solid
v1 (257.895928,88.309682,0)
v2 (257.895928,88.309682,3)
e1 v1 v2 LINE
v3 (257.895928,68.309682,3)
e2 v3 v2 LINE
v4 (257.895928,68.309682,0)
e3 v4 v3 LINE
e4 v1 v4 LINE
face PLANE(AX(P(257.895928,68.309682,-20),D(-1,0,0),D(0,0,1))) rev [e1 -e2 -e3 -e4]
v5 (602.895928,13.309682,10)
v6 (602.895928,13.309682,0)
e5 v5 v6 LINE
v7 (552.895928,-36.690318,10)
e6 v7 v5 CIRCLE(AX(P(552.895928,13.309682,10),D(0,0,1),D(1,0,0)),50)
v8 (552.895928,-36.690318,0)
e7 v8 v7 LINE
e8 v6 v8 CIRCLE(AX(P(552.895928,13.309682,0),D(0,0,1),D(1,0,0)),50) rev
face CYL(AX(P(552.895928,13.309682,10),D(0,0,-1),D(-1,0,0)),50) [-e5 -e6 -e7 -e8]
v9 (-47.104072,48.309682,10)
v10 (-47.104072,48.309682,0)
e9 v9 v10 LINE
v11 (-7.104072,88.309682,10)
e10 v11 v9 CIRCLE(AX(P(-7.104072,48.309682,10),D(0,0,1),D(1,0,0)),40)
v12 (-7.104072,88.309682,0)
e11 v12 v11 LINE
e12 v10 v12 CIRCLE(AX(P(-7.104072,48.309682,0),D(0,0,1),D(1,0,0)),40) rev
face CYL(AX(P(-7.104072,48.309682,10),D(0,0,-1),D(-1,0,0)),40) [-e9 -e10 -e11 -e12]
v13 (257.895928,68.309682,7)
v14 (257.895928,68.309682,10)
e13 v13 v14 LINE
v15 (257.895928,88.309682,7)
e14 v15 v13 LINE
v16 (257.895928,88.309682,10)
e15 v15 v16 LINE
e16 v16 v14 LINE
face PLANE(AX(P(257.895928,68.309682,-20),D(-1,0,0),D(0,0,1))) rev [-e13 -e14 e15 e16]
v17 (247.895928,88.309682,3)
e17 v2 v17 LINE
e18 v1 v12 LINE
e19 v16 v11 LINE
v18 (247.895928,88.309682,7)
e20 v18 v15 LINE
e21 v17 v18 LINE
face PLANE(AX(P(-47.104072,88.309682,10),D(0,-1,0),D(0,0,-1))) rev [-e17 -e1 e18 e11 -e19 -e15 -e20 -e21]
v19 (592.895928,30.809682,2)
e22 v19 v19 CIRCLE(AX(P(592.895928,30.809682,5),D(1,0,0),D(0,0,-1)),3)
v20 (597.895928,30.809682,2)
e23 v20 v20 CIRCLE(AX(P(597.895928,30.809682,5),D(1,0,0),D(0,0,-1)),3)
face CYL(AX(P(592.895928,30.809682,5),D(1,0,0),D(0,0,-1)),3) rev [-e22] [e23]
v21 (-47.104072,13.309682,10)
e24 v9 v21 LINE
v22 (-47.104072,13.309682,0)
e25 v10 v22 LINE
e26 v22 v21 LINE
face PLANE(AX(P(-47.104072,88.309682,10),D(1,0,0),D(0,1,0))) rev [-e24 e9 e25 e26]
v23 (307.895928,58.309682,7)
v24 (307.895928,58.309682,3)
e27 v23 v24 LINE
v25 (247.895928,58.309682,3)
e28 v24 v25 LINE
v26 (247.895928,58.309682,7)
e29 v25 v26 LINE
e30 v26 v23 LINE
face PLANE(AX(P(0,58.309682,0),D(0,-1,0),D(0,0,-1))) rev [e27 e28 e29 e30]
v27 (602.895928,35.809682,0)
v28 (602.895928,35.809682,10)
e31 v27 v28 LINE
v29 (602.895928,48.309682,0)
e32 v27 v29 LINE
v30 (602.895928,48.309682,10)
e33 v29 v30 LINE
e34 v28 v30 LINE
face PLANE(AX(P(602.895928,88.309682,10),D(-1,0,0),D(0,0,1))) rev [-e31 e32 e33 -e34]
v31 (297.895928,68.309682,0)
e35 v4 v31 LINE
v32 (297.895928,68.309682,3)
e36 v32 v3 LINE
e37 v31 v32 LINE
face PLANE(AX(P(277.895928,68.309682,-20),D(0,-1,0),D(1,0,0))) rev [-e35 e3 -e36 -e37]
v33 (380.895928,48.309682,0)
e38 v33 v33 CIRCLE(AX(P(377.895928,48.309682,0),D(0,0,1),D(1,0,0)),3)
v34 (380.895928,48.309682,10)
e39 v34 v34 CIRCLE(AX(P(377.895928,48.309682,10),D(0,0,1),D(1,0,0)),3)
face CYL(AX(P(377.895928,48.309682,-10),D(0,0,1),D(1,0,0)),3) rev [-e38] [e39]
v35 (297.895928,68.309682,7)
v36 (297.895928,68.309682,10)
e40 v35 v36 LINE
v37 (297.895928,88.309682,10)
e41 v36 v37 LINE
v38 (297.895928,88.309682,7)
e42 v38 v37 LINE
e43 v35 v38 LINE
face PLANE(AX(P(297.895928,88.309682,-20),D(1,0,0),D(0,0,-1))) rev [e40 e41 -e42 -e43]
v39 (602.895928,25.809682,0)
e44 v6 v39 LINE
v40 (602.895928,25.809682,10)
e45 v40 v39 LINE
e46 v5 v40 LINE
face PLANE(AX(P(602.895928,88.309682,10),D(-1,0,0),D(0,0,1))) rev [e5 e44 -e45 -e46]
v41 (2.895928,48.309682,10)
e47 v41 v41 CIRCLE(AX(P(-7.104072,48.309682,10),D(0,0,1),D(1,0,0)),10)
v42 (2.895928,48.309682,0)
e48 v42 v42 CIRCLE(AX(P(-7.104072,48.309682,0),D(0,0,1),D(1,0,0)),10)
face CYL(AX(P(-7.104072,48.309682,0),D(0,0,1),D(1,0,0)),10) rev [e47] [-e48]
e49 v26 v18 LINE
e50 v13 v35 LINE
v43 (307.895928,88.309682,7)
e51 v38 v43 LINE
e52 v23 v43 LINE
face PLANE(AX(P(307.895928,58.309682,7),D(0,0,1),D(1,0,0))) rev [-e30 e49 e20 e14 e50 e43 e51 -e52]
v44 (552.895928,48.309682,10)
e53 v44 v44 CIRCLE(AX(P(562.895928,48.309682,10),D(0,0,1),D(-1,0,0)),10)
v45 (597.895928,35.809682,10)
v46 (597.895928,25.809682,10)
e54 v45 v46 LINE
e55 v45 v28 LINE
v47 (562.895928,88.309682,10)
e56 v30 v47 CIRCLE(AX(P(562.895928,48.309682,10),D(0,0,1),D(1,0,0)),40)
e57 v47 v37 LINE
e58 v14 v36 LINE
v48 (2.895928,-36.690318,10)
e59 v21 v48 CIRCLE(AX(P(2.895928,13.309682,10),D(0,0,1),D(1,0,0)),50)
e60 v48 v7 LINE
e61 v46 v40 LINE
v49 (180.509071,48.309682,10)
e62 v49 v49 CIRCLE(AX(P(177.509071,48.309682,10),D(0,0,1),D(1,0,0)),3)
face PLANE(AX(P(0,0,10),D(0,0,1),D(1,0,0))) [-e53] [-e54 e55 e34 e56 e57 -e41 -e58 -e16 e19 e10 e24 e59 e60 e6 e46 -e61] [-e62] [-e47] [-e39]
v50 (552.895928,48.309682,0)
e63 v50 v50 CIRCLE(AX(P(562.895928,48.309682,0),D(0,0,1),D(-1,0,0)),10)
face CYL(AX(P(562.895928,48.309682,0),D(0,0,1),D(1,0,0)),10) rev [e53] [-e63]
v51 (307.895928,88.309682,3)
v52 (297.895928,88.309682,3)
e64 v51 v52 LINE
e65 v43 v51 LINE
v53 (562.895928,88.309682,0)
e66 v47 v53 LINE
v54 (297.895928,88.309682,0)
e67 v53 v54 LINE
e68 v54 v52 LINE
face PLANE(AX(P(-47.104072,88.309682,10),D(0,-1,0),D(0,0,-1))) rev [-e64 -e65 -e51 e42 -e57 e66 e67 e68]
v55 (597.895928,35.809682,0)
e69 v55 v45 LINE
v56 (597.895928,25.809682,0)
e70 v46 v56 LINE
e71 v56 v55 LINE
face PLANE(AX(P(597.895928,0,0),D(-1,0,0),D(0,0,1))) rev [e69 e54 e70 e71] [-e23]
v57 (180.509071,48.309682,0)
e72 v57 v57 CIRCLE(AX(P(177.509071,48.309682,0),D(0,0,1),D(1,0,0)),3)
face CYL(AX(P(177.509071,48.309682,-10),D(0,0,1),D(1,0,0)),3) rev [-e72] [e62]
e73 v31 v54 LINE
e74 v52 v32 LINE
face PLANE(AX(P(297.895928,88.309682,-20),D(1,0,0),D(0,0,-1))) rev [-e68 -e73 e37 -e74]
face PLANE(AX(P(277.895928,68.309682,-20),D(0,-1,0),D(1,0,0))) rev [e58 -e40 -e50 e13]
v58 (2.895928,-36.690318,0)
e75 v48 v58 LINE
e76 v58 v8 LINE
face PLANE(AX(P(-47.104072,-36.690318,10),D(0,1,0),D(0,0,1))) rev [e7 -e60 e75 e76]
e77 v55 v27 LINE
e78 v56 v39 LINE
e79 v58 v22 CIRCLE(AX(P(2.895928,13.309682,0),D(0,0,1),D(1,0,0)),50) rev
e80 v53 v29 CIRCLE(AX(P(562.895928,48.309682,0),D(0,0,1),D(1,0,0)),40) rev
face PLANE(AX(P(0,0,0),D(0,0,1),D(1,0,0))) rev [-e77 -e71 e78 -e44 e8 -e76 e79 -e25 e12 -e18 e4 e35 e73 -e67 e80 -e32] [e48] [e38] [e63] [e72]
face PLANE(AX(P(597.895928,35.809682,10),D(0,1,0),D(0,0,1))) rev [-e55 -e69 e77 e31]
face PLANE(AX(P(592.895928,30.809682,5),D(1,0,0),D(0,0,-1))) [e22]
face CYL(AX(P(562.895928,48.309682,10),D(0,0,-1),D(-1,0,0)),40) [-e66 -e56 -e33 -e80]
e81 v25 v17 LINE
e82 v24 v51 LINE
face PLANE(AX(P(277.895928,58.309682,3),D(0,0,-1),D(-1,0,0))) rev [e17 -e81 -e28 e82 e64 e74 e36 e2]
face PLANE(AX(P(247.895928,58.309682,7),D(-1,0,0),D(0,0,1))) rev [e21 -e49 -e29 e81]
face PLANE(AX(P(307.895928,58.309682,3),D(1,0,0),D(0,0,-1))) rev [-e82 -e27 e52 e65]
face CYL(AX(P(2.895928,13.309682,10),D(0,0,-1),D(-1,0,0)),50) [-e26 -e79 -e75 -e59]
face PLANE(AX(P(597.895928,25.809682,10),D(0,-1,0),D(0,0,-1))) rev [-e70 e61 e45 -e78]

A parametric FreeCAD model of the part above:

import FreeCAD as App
import Part
import Sketcher


def edges_at(feature, points):
    """Names of the edges that pass closest to the given points."""
    edges = feature.Shape.Edges
    near = lambda p: min(range(len(edges)), key=lambda i: edges[i].distToShape(Part.Vertex(*p))[0])
    return sorted({f"Edge{near(p) + 1}" for p in points})


def add_polygon(sketch, points):
    """Adds a closed chain of lines whose ends are joined by coincident constraints."""
    first, n = sketch.GeometryCount, len(points)
    for a, b in zip(points, points[1:] + points[:1]):
        sketch.addGeometry(Part.LineSegment(App.Vector(*a, 0), App.Vector(*b, 0)), False)
    for i in range(n):
        sketch.addConstraint(Sketcher.Constraint("Coincident", first + i, 2, first + (i + 1) % n, 1))

doc = App.newDocument("Part")
body = doc.addObject("PartDesign::Body", "Body")

# Sketch on XY plane
sketch1 = body.newObject("Sketcher::SketchObject", "Sketch")
sketch1.AttachmentSupport = (doc.getObject("XY_Plane"), [""])
sketch1.MapMode = "FlatFace"
add_polygon(sketch1, [(-47, 88), (-47, -37), (603, -37), (603, 88)])  # lines 0-3
sketch1.addConstraint(Sketcher.Constraint("Vertical", 0))
sketch1.addConstraint(Sketcher.Constraint("Horizontal", 1))
sketch1.addConstraint(Sketcher.Constraint("Vertical", 2))
sketch1.addConstraint(Sketcher.Constraint("Horizontal", 3))
sketch1.addConstraint(Sketcher.Constraint("DistanceX", 1, 1, 1, 2, 650.0))
sketch1.addConstraint(Sketcher.Constraint("DistanceY", 0, 2, 0, 1, 125.0))
sketch1.addConstraint(Sketcher.Constraint("DistanceX", 0, 2, -1, 1, 47.104072))
sketch1.addConstraint(Sketcher.Constraint("DistanceY", 0, 2, -1, 1, 36.690318))
pad1 = body.newObject("PartDesign::Pad", "Pad")
pad1.Profile = sketch1
pad1.Length = 10

# Sketch on XY plane
sketch2 = body.newObject("Sketcher::SketchObject", "Sketch001")
sketch2.AttachmentSupport = (doc.getObject("XY_Plane"), [""])
sketch2.MapMode = "FlatFace"
sketch2.AttachmentOffset = App.Placement(App.Vector(0, 0, 10), App.Rotation())
sketch2.addGeometry(Part.Circle(App.Vector(-7, 48, 0), App.Vector(0, 0, 1), 10), False)
sketch2.addConstraint(Sketcher.Constraint("Diameter", 0, 20.0))
sketch2.addConstraint(Sketcher.Constraint("DistanceX", 0, 3, -1, 1, 7.104072))
sketch2.addConstraint(Sketcher.Constraint("DistanceY", -1, 1, 0, 3, 48.309682))
pocket1 = body.newObject("PartDesign::Pocket", "Pocket")
pocket1.Profile = sketch2
pocket1.Length = 10

# Sketch on XY plane
sketch3 = body.newObject("Sketcher::SketchObject", "Sketch002")
sketch3.AttachmentSupport = (doc.getObject("XY_Plane"), [""])
sketch3.MapMode = "FlatFace"
sketch3.AttachmentOffset = App.Placement(App.Vector(0, 0, 10), App.Rotation())
sketch3.addGeometry(Part.Circle(App.Vector(563, 48, 0), App.Vector(0, 0, 1), 10), False)
sketch3.addConstraint(Sketcher.Constraint("Diameter", 0, 20.0))
sketch3.addConstraint(Sketcher.Constraint("DistanceX", -1, 1, 0, 3, 562.895928))
sketch3.addConstraint(Sketcher.Constraint("DistanceY", -1, 1, 0, 3, 48.309682))
pocket2 = body.newObject("PartDesign::Pocket", "Pocket001")
pocket2.Profile = sketch3
pocket2.Length = 10

# Sketch on XY plane
sketch4 = body.newObject("Sketcher::SketchObject", "Sketch003")
sketch4.AttachmentSupport = (doc.getObject("XY_Plane"), [""])
sketch4.MapMode = "FlatFace"
sketch4.AttachmentOffset = App.Placement(App.Vector(0, 0, 10), App.Rotation())
sketch4.addGeometry(Part.Circle(App.Vector(177.5, 48.3, 0), App.Vector(0, 0, 1), 3), False)
sketch4.addGeometry(Part.Circle(App.Vector(377.9, 48.3, 0), App.Vector(0, 0, 1), 3), False)
sketch4.addConstraint(Sketcher.Constraint("Equal", 0, 1))
sketch4.addConstraint(Sketcher.Constraint("Horizontal", 0, 3, 1, 3))
sketch4.addConstraint(Sketcher.Constraint("Diameter", 0, 6.0))
sketch4.addConstraint(Sketcher.Constraint("DistanceX", -1, 1, 0, 3, 177.509071))
sketch4.addConstraint(Sketcher.Constraint("DistanceY", -1, 1, 0, 3, 48.309682))
sketch4.addConstraint(Sketcher.Constraint("DistanceX", -1, 1, 1, 3, 377.895928))
pocket3 = body.newObject("PartDesign::Pocket", "Pocket002")
pocket3.Profile = sketch4
pocket3.Length = 20

# Sketch on XZ plane
sketch5 = body.newObject("Sketcher::SketchObject", "Sketch004")
sketch5.AttachmentSupport = (doc.getObject("XZ_Plane"), [""])
sketch5.MapMode = "FlatFace"
sketch5.AttachmentOffset = App.Placement(App.Vector(0, 0, -88.309682), App.Rotation())
add_polygon(sketch5, [(307.9, 3), (247.9, 3), (247.9, 7), (307.9, 7)])  # lines 0-3
sketch5.addConstraint(Sketcher.Constraint("Horizontal", 0))
sketch5.addConstraint(Sketcher.Constraint("Vertical", 1))
sketch5.addConstraint(Sketcher.Constraint("Horizontal", 2))
sketch5.addConstraint(Sketcher.Constraint("Vertical", 3))
sketch5.addConstraint(Sketcher.Constraint("DistanceX", 0, 2, 0, 1, 60.0))
sketch5.addConstraint(Sketcher.Constraint("DistanceY", 1, 1, 1, 2, 4.0))
sketch5.addConstraint(Sketcher.Constraint("DistanceY", -1, 1, 0, 2, 3.0))
sketch5.addConstraint(Sketcher.Constraint("DistanceX", -1, 1, 0, 2, 247.895928))
pocket4 = body.newObject("PartDesign::Pocket", "Pocket003")
pocket4.Profile = sketch5
pocket4.Length = 30
pocket4.Reversed = True

# Sketch on XY plane
sketch6 = body.newObject("Sketcher::SketchObject", "Sketch005")
sketch6.AttachmentSupport = (doc.getObject("XY_Plane"), [""])
sketch6.MapMode = "FlatFace"
sketch6.AttachmentOffset = App.Placement(App.Vector(0, 0, 10), App.Rotation())
add_polygon(sketch6, [(258, 68), (298, 68), (298, 88), (258, 88)])  # lines 0-3
sketch6.addConstraint(Sketcher.Constraint("Horizontal", 0))
sketch6.addConstraint(Sketcher.Constraint("Vertical", 1))
sketch6.addConstraint(Sketcher.Constraint("Horizontal", 2))
sketch6.addConstraint(Sketcher.Constraint("Vertical", 3))
sketch6.addConstraint(Sketcher.Constraint("DistanceX", 0, 1, 0, 2, 40.0))
sketch6.addConstraint(Sketcher.Constraint("DistanceY", 1, 1, 1, 2, 20.0))
sketch6.addConstraint(Sketcher.Constraint("DistanceX", -1, 1, 0, 2, 297.895928))
sketch6.addConstraint(Sketcher.Constraint("DistanceY", -1, 1, 0, 2, 68.309682))
pocket5 = body.newObject("PartDesign::Pocket", "Pocket004")
pocket5.Profile = sketch6
pocket5.Length = 30

# Sketch on XY plane
sketch7 = body.newObject("Sketcher::SketchObject", "Sketch006")
sketch7.AttachmentSupport = (doc.getObject("XY_Plane"), [""])
sketch7.MapMode = "FlatFace"
sketch7.AttachmentOffset = App.Placement(App.Vector(0, 0, 10), App.Rotation())
add_polygon(sketch7, [(160.9, 25.3), (158.9, 25.3), (158.9, -34.7), (98.9, -34.7), (98.9, 25.3), (96.9, 25.3), (96.9, -36.7), (160.9, -36.7)])  # lines 0-7
add_polygon(sketch7, [(91.9, 25.3), (89.9, 25.3), (89.9, -34.7), (29.9, -34.7), (29.9, 25.3), (27.9, 25.3), (27.9, -36.7), (91.9, -36.7)])  # lines 8-15
sketch7.addConstraint(Sketcher.Constraint("Horizontal", 0))
sketch7.addConstraint(Sketcher.Constraint("Vertical", 1))
sketch7.addConstraint(Sketcher.Constraint("Horizontal", 2))
sketch7.addConstraint(Sketcher.Constraint("Vertical", 3))
sketch7.addConstraint(Sketcher.Constraint("Horizontal", 4))
sketch7.addConstraint(Sketcher.Constraint("Vertical", 5))
sketch7.addConstraint(Sketcher.Constraint("Horizontal", 6))
sketch7.addConstraint(Sketcher.Constraint("Vertical", 7))
sketch7.addConstraint(Sketcher.Constraint("Horizontal", 8))
sketch7.addConstraint(Sketcher.Constraint("Vertical", 9))
sketch7.addConstraint(Sketcher.Constraint("Horizontal", 10))
sketch7.addConstraint(Sketcher.Constraint("Vertical", 11))
sketch7.addConstraint(Sketcher.Constraint("Horizontal", 12))
sketch7.addConstraint(Sketcher.Constraint("Vertical", 13))
sketch7.addConstraint(Sketcher.Constraint("Horizontal", 14))
sketch7.addConstraint(Sketcher.Constraint("Vertical", 15))
sketch7.addConstraint(Sketcher.Constraint("Horizontal", 0, 2, 3, 2))
sketch7.addConstraint(Sketcher.Constraint("Horizontal", 7, 2, 8, 2))
sketch7.addConstraint(Sketcher.Constraint("Horizontal", 2, 2, 9, 2))
sketch7.addConstraint(Sketcher.Constraint("Horizontal", 8, 2, 11, 2))
sketch7.addConstraint(Sketcher.Constraint("Horizontal", 6, 2, 13, 2))
sketch7.addConstraint(Sketcher.Constraint("Equal", 0, 4))
sketch7.addConstraint(Sketcher.Constraint("Equal", 4, 8))
sketch7.addConstraint(Sketcher.Constraint("Equal", 2, 10))
sketch7.addConstraint(Sketcher.Constraint("Equal", 8, 12))
sketch7.addConstraint(Sketcher.Constraint("Equal", 10, 1))
sketch7.addConstraint(Sketcher.Constraint("DistanceX", 0, 2, 0, 1, 2.0))
sketch7.addConstraint(Sketcher.Constraint("DistanceX", 2, 2, 2, 1, 60.0))
sketch7.addConstraint(Sketcher.Constraint("DistanceY", 5, 2, 5, 1, 62.0))
sketch7.addConstraint(Sketcher.Constraint("DistanceX", 8, 2, 4, 2, 7.0))
sketch7.addConstraint(Sketcher.Constraint("DistanceX", -1, 1, 0, 2, 158.895928))
sketch7.addConstraint(Sketcher.Constraint("DistanceY", -1, 1, 0, 2, 25.309682))
pad2 = body.newObject("PartDesign::Pad", "Pad001")
pad2.Profile = sketch7
pad2.Length = 20

# Sketch on YZ plane
sketch8 = body.newObject("Sketcher::SketchObject", "Sketch007")
sketch8.AttachmentSupport = (doc.getObject("YZ_Plane"), [""])
sketch8.MapMode = "FlatFace"
sketch8.AttachmentOffset = App.Placement(App.Vector(0, 0, 602.895928), App.Rotation())
add_polygon(sketch8, [(36, 10), (26, 10), (26, 0), (36, 0)])  # lines 0-3
sketch8.addConstraint(Sketcher.Constraint("Horizontal", 0))
sketch8.addConstraint(Sketcher.Constraint("Vertical", 1))
sketch8.addConstraint(Sketcher.Constraint("Horizontal", 2))
sketch8.addConstraint(Sketcher.Constraint("Vertical", 3))
sketch8.addConstraint(Sketcher.Constraint("PointOnObject", 1, 2, -1))
sketch8.addConstraint(Sketcher.Constraint("Equal", 2, 1))
sketch8.addConstraint(Sketcher.Constraint("DistanceX", 0, 2, 0, 1, 10.0))
sketch8.addConstraint(Sketcher.Constraint("DistanceX", -1, 1, 0, 2, 25.809682))
pocket6 = body.newObject("PartDesign::Pocket", "Pocket005")
pocket6.Profile = sketch8
pocket6.Length = 5

# Sketch on YZ plane
sketch9 = body.newObject("Sketcher::SketchObject", "Sketch008")
sketch9.AttachmentSupport = (doc.getObject("YZ_Plane"), [""])
sketch9.MapMode = "FlatFace"
sketch9.AttachmentOffset = App.Placement(App.Vector(0, 0, 597.895928), App.Rotation())
sketch9.addGeometry(Part.Circle(App.Vector(30.8, 5, 0), App.Vector(0, 0, 1), 3), False)
sketch9.addConstraint(Sketcher.Constraint("Diameter", 0, 6.0))
sketch9.addConstraint(Sketcher.Constraint("DistanceY", -1, 1, 0, 3, 5.0))
sketch9.addConstraint(Sketcher.Constraint("DistanceX", -1, 1, 0, 3, 30.809682))
pocket7 = body.newObject("PartDesign::Pocket", "Pocket006")
pocket7.Profile = sketch9
pocket7.Length = 5
doc.recompute()

fillet = body.newObject("PartDesign::Fillet", "Fillet")
fillet.Base = (pocket7, edges_at(pocket7, [(602.896, -36.69, 5)]))
fillet.Radius = 50
doc.recompute()

fillet2 = body.newObject("PartDesign::Fillet", "Fillet001")
fillet2.Base = (fillet, edges_at(fillet, [(602.896, 88.31, 5)]))
fillet2.Radius = 40
doc.recompute()

fillet3 = body.newObject("PartDesign::Fillet", "Fillet002")
fillet3.Base = (fillet2, edges_at(fillet2, [(-47.104, -36.69, 5)]))
fillet3.Radius = 50
doc.recompute()

fillet4 = body.newObject("PartDesign::Fillet", "Fillet003")
fillet4.Base = (fillet3, edges_at(fillet3, [(-47.104, 88.31, 5)]))
fillet4.Radius = 40

# Sketch on XZ plane
sketch10 = body.newObject("Sketcher::SketchObject", "Sketch009")
sketch10.AttachmentSupport = (doc.getObject("XZ_Plane"), [""])
sketch10.MapMode = "FlatFace"
sketch10.AttachmentOffset = App.Placement(App.Vector(0, 0, 36.690318), App.Rotation())
add_polygon(sketch10, [(28, 30), (28, 10), (161, 10), (161, 30)])  # lines 0-3
sketch10.addConstraint(Sketcher.Constraint("Vertical", 0))
sketch10.addConstraint(Sketcher.Constraint("Horizontal", 1))
sketch10.addConstraint(Sketcher.Constraint("Vertical", 2))
sketch10.addConstraint(Sketcher.Constraint("Horizontal", 3))
sketch10.addConstraint(Sketcher.Constraint("DistanceX", 1, 1, 1, 2, 133.0))
sketch10.addConstraint(Sketcher.Constraint("DistanceY", 0, 2, 0, 1, 20.0))
sketch10.addConstraint(Sketcher.Constraint("DistanceY", -1, 1, 0, 2, 10.0))
sketch10.addConstraint(Sketcher.Constraint("DistanceX", -1, 1, 0, 2, 27.895928))
pocket8 = body.newObject("PartDesign::Pocket", "Pocket007")
pocket8.Profile = sketch10
pocket8.Length = 80

doc.recompute()
